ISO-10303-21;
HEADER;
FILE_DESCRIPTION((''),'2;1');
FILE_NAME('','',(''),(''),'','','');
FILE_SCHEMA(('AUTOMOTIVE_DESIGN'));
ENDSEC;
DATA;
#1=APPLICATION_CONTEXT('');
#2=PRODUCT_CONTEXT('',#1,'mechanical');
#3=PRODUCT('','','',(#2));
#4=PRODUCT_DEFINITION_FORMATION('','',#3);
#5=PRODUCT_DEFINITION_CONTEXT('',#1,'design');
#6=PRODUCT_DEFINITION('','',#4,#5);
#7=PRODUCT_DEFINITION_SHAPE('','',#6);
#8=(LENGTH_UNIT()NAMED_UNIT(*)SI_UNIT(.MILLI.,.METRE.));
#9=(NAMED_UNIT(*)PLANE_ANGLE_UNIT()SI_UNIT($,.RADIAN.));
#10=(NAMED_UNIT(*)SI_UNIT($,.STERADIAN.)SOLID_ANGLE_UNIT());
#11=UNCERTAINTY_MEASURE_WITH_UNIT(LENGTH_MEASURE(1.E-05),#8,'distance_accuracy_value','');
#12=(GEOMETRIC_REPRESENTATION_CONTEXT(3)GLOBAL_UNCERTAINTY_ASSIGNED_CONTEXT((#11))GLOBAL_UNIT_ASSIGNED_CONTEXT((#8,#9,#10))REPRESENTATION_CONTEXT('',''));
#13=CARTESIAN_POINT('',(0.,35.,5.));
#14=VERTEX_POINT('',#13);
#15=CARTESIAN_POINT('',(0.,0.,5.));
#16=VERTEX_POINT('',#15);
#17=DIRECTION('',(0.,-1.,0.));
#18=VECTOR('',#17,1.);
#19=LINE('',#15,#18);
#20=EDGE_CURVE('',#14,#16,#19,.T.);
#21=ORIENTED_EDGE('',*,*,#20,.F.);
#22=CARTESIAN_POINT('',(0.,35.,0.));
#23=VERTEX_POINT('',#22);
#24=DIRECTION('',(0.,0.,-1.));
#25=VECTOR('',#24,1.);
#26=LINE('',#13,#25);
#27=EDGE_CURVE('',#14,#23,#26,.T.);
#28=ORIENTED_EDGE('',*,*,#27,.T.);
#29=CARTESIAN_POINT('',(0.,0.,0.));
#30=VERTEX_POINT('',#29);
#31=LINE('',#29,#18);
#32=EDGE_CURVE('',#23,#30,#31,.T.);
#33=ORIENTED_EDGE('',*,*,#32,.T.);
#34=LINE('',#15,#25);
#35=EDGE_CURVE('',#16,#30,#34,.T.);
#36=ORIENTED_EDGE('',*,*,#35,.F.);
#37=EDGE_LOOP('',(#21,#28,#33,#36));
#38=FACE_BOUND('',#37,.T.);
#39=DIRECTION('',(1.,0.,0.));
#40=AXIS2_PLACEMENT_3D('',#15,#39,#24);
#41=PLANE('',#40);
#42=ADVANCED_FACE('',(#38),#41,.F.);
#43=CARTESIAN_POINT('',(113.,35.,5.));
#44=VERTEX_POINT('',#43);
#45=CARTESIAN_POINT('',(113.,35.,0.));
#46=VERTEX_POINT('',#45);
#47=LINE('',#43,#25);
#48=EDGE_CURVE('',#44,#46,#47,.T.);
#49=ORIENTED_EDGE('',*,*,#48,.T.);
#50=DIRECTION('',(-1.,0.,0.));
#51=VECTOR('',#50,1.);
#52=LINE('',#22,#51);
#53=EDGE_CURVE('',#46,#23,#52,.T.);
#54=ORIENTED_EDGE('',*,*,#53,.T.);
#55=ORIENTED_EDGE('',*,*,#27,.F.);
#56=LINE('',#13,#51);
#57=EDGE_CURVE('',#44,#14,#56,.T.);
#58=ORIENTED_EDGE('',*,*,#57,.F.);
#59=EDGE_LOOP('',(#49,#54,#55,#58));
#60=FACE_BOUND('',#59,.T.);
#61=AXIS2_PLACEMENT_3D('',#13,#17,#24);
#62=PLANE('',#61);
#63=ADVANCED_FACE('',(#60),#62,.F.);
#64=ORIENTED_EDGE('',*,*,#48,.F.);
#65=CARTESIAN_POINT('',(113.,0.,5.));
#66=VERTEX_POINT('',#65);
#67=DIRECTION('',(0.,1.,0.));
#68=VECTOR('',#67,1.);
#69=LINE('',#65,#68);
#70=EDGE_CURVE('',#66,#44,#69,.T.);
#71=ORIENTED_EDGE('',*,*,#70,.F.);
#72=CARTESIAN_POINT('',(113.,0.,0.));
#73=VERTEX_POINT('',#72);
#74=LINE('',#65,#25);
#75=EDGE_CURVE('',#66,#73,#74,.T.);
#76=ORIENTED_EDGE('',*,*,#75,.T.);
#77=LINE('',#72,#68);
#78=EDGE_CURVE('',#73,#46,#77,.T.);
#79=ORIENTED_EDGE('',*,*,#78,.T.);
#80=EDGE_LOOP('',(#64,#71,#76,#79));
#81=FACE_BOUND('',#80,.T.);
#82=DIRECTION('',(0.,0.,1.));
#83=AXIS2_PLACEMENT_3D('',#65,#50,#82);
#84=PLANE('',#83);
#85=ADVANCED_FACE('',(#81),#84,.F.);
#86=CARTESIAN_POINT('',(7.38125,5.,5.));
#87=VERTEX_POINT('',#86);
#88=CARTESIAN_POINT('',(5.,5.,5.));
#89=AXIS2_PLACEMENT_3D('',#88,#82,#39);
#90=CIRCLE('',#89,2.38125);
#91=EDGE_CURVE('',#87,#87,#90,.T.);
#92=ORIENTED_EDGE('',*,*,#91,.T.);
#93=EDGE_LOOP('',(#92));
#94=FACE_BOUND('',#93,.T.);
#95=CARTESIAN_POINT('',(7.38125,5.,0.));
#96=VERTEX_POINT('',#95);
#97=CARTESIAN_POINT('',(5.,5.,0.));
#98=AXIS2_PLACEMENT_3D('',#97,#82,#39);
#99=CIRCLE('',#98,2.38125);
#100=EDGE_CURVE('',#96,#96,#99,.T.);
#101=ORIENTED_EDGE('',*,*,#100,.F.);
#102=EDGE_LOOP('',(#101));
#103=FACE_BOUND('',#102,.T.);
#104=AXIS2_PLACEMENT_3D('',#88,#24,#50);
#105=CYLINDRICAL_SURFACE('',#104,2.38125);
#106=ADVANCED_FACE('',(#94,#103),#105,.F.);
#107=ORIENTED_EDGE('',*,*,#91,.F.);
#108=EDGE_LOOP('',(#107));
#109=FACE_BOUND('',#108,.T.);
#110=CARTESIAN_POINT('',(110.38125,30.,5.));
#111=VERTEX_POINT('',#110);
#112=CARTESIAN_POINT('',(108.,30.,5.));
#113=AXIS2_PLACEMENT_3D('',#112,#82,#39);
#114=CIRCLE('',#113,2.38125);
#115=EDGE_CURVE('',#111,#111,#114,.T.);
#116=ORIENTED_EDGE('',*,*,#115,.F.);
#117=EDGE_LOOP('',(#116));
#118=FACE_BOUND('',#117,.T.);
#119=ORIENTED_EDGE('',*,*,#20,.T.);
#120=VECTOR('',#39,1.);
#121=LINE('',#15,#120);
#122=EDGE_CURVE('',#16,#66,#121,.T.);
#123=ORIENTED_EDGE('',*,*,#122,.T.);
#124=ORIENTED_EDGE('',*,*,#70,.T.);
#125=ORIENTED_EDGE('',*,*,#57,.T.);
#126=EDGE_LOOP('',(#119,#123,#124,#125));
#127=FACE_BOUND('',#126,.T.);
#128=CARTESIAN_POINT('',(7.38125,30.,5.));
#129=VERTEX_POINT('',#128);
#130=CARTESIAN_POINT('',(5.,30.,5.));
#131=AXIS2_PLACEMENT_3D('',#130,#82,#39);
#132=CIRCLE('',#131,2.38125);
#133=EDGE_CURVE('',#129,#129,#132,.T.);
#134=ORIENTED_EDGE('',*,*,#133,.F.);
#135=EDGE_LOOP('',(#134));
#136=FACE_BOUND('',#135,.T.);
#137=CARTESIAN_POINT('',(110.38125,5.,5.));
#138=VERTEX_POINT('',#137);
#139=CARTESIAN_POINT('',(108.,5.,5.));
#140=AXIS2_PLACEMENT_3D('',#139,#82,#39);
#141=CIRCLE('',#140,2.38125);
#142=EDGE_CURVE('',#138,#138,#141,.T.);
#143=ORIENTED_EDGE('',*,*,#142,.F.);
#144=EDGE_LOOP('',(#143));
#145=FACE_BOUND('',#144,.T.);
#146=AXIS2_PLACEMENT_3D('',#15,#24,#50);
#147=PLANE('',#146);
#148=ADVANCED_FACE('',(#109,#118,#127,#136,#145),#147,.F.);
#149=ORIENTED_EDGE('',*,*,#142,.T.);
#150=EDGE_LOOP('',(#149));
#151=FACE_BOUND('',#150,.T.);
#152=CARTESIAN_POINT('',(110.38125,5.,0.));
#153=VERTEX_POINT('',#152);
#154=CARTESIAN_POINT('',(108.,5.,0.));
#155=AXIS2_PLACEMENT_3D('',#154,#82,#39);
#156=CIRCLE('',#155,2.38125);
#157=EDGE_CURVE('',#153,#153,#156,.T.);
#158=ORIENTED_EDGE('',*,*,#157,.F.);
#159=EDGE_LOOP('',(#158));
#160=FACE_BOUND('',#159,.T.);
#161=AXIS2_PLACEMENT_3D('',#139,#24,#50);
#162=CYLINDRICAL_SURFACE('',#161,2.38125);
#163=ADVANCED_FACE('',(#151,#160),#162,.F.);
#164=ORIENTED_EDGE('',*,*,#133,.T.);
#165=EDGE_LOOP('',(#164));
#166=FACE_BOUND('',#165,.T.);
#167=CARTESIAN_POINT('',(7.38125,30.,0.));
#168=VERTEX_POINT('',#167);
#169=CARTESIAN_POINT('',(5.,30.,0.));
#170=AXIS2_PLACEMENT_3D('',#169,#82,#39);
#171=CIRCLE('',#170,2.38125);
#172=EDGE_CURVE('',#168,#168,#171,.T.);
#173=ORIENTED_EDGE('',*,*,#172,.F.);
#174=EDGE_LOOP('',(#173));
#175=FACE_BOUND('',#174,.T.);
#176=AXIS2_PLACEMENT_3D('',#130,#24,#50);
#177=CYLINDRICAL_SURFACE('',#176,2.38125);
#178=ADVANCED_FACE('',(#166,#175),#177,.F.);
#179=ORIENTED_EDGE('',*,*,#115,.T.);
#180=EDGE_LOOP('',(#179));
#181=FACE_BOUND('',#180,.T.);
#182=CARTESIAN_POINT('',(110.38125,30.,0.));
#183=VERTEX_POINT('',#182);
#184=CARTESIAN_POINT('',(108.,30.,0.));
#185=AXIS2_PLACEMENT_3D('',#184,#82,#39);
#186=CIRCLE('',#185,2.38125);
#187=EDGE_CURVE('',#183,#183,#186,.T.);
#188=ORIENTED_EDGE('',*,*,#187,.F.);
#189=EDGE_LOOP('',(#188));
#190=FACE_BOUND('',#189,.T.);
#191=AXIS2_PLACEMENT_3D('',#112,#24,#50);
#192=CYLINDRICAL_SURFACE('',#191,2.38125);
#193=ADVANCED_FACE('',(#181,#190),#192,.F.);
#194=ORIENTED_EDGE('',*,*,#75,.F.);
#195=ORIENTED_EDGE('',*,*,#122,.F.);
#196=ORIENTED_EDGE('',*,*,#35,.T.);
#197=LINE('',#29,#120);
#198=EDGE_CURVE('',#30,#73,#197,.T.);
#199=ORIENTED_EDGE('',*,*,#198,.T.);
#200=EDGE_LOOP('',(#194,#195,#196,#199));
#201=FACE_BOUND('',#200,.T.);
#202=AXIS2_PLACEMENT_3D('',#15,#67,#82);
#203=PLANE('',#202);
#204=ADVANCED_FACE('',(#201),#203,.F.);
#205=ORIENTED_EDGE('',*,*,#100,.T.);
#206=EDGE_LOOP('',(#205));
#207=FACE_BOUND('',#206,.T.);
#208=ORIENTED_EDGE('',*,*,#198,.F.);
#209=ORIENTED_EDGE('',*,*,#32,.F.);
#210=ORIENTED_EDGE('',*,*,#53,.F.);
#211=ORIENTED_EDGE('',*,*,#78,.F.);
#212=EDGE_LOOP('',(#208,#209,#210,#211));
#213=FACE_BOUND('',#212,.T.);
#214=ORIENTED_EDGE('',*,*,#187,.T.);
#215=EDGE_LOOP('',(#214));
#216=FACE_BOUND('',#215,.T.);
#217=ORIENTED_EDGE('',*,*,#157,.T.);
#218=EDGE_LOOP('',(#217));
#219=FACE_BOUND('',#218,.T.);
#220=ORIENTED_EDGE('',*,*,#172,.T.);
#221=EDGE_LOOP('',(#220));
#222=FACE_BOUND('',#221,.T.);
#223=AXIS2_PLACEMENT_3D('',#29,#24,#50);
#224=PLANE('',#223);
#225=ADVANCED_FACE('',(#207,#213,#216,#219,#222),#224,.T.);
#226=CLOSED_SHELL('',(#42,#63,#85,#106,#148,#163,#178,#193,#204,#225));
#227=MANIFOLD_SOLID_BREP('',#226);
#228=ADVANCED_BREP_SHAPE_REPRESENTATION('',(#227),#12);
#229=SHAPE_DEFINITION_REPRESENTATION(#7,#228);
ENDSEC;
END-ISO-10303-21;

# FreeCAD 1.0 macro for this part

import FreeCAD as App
import Part
import Sketcher
Q = App.Units.Quantity

doc = App.newDocument("Part")
body = doc.addObject("PartDesign::Body", "Body")

# Sketch on XY plane
sketch1 = body.newObject("Sketcher::SketchObject", "Sketch")
sketch1.AttachmentSupport = (doc.getObject("XY_Plane"), [""])
sketch1.MapMode = "FlatFace"
sketch1.addGeometry(Part.LineSegment(App.Vector(0, 35, 0), App.Vector(0, 0, 0)), False)
sketch1.addGeometry(Part.LineSegment(App.Vector(0, 0, 0), App.Vector(113, 0, 0)), False)
sketch1.addGeometry(Part.LineSegment(App.Vector(113, 0, 0), App.Vector(113, 35, 0)), False)
sketch1.addGeometry(Part.LineSegment(App.Vector(113, 35, 0), App.Vector(0, 35, 0)), False)
sketch1.addGeometry(Part.Circle(App.Vector(5, 5, 0), App.Vector(0, 0, 1), 2.4), False)
sketch1.addGeometry(Part.Circle(App.Vector(108, 5, 0), App.Vector(0, 0, 1), 2.4), False)
sketch1.addGeometry(Part.Circle(App.Vector(5, 30, 0), App.Vector(0, 0, 1), 2.4), False)
sketch1.addGeometry(Part.Circle(App.Vector(108, 30, 0), App.Vector(0, 0, 1), 2.4), False)
sketch1.addConstraint(Sketcher.Constraint("Coincident", 0, 2, 1, 1))
sketch1.addConstraint(Sketcher.Constraint("Coincident", 1, 2, 2, 1))
sketch1.addConstraint(Sketcher.Constraint("Coincident", 2, 2, 3, 1))
sketch1.addConstraint(Sketcher.Constraint("Coincident", 3, 2, 0, 1))
sketch1.addConstraint(Sketcher.Constraint("Vertical", 0))
sketch1.addConstraint(Sketcher.Constraint("Horizontal", 1))
sketch1.addConstraint(Sketcher.Constraint("Vertical", 2))
sketch1.addConstraint(Sketcher.Constraint("Horizontal", 3))
sketch1.addConstraint(Sketcher.Constraint("Coincident", 0, 2, -1, 1))
sketch1.addConstraint(Sketcher.Constraint("Equal", 4, 5))
sketch1.addConstraint(Sketcher.Constraint("Equal", 5, 6))
sketch1.addConstraint(Sketcher.Constraint("Equal", 6, 7))
sketch1.addConstraint(Sketcher.Constraint("Horizontal", 4, 3, 5, 3))
sketch1.addConstraint(Sketcher.Constraint("Horizontal", 6, 3, 7, 3))
sketch1.addConstraint(Sketcher.Constraint("Vertical", 4, 3, 6, 3))
sketch1.addConstraint(Sketcher.Constraint("Vertical", 5, 3, 7, 3))
sketch1.addConstraint(Sketcher.Constraint("DistanceX", 1, 1, 1, 2, Q("113 mm")))
sketch1.addConstraint(Sketcher.Constraint("DistanceY", 0, 2, 0, 1, Q("35 mm")))
sketch1.addConstraint(Sketcher.Constraint("DistanceX", -1, 1, 4, 3, Q("5 mm")))
sketch1.addConstraint(Sketcher.Constraint("DistanceY", -1, 1, 4, 3, Q("5 mm")))
sketch1.addConstraint(Sketcher.Constraint("DistanceX", -1, 1, 5, 3, Q("108 mm")))
sketch1.addConstraint(Sketcher.Constraint("DistanceY", -1, 1, 6, 3, Q("30 mm")))
sketch1.addConstraint(Sketcher.Constraint("Diameter", 4, Q("4.7625 mm")))
pad1 = body.newObject("PartDesign::Pad", "Pad")
pad1.Profile = sketch1
pad1.Length = 5

doc.recompute()
